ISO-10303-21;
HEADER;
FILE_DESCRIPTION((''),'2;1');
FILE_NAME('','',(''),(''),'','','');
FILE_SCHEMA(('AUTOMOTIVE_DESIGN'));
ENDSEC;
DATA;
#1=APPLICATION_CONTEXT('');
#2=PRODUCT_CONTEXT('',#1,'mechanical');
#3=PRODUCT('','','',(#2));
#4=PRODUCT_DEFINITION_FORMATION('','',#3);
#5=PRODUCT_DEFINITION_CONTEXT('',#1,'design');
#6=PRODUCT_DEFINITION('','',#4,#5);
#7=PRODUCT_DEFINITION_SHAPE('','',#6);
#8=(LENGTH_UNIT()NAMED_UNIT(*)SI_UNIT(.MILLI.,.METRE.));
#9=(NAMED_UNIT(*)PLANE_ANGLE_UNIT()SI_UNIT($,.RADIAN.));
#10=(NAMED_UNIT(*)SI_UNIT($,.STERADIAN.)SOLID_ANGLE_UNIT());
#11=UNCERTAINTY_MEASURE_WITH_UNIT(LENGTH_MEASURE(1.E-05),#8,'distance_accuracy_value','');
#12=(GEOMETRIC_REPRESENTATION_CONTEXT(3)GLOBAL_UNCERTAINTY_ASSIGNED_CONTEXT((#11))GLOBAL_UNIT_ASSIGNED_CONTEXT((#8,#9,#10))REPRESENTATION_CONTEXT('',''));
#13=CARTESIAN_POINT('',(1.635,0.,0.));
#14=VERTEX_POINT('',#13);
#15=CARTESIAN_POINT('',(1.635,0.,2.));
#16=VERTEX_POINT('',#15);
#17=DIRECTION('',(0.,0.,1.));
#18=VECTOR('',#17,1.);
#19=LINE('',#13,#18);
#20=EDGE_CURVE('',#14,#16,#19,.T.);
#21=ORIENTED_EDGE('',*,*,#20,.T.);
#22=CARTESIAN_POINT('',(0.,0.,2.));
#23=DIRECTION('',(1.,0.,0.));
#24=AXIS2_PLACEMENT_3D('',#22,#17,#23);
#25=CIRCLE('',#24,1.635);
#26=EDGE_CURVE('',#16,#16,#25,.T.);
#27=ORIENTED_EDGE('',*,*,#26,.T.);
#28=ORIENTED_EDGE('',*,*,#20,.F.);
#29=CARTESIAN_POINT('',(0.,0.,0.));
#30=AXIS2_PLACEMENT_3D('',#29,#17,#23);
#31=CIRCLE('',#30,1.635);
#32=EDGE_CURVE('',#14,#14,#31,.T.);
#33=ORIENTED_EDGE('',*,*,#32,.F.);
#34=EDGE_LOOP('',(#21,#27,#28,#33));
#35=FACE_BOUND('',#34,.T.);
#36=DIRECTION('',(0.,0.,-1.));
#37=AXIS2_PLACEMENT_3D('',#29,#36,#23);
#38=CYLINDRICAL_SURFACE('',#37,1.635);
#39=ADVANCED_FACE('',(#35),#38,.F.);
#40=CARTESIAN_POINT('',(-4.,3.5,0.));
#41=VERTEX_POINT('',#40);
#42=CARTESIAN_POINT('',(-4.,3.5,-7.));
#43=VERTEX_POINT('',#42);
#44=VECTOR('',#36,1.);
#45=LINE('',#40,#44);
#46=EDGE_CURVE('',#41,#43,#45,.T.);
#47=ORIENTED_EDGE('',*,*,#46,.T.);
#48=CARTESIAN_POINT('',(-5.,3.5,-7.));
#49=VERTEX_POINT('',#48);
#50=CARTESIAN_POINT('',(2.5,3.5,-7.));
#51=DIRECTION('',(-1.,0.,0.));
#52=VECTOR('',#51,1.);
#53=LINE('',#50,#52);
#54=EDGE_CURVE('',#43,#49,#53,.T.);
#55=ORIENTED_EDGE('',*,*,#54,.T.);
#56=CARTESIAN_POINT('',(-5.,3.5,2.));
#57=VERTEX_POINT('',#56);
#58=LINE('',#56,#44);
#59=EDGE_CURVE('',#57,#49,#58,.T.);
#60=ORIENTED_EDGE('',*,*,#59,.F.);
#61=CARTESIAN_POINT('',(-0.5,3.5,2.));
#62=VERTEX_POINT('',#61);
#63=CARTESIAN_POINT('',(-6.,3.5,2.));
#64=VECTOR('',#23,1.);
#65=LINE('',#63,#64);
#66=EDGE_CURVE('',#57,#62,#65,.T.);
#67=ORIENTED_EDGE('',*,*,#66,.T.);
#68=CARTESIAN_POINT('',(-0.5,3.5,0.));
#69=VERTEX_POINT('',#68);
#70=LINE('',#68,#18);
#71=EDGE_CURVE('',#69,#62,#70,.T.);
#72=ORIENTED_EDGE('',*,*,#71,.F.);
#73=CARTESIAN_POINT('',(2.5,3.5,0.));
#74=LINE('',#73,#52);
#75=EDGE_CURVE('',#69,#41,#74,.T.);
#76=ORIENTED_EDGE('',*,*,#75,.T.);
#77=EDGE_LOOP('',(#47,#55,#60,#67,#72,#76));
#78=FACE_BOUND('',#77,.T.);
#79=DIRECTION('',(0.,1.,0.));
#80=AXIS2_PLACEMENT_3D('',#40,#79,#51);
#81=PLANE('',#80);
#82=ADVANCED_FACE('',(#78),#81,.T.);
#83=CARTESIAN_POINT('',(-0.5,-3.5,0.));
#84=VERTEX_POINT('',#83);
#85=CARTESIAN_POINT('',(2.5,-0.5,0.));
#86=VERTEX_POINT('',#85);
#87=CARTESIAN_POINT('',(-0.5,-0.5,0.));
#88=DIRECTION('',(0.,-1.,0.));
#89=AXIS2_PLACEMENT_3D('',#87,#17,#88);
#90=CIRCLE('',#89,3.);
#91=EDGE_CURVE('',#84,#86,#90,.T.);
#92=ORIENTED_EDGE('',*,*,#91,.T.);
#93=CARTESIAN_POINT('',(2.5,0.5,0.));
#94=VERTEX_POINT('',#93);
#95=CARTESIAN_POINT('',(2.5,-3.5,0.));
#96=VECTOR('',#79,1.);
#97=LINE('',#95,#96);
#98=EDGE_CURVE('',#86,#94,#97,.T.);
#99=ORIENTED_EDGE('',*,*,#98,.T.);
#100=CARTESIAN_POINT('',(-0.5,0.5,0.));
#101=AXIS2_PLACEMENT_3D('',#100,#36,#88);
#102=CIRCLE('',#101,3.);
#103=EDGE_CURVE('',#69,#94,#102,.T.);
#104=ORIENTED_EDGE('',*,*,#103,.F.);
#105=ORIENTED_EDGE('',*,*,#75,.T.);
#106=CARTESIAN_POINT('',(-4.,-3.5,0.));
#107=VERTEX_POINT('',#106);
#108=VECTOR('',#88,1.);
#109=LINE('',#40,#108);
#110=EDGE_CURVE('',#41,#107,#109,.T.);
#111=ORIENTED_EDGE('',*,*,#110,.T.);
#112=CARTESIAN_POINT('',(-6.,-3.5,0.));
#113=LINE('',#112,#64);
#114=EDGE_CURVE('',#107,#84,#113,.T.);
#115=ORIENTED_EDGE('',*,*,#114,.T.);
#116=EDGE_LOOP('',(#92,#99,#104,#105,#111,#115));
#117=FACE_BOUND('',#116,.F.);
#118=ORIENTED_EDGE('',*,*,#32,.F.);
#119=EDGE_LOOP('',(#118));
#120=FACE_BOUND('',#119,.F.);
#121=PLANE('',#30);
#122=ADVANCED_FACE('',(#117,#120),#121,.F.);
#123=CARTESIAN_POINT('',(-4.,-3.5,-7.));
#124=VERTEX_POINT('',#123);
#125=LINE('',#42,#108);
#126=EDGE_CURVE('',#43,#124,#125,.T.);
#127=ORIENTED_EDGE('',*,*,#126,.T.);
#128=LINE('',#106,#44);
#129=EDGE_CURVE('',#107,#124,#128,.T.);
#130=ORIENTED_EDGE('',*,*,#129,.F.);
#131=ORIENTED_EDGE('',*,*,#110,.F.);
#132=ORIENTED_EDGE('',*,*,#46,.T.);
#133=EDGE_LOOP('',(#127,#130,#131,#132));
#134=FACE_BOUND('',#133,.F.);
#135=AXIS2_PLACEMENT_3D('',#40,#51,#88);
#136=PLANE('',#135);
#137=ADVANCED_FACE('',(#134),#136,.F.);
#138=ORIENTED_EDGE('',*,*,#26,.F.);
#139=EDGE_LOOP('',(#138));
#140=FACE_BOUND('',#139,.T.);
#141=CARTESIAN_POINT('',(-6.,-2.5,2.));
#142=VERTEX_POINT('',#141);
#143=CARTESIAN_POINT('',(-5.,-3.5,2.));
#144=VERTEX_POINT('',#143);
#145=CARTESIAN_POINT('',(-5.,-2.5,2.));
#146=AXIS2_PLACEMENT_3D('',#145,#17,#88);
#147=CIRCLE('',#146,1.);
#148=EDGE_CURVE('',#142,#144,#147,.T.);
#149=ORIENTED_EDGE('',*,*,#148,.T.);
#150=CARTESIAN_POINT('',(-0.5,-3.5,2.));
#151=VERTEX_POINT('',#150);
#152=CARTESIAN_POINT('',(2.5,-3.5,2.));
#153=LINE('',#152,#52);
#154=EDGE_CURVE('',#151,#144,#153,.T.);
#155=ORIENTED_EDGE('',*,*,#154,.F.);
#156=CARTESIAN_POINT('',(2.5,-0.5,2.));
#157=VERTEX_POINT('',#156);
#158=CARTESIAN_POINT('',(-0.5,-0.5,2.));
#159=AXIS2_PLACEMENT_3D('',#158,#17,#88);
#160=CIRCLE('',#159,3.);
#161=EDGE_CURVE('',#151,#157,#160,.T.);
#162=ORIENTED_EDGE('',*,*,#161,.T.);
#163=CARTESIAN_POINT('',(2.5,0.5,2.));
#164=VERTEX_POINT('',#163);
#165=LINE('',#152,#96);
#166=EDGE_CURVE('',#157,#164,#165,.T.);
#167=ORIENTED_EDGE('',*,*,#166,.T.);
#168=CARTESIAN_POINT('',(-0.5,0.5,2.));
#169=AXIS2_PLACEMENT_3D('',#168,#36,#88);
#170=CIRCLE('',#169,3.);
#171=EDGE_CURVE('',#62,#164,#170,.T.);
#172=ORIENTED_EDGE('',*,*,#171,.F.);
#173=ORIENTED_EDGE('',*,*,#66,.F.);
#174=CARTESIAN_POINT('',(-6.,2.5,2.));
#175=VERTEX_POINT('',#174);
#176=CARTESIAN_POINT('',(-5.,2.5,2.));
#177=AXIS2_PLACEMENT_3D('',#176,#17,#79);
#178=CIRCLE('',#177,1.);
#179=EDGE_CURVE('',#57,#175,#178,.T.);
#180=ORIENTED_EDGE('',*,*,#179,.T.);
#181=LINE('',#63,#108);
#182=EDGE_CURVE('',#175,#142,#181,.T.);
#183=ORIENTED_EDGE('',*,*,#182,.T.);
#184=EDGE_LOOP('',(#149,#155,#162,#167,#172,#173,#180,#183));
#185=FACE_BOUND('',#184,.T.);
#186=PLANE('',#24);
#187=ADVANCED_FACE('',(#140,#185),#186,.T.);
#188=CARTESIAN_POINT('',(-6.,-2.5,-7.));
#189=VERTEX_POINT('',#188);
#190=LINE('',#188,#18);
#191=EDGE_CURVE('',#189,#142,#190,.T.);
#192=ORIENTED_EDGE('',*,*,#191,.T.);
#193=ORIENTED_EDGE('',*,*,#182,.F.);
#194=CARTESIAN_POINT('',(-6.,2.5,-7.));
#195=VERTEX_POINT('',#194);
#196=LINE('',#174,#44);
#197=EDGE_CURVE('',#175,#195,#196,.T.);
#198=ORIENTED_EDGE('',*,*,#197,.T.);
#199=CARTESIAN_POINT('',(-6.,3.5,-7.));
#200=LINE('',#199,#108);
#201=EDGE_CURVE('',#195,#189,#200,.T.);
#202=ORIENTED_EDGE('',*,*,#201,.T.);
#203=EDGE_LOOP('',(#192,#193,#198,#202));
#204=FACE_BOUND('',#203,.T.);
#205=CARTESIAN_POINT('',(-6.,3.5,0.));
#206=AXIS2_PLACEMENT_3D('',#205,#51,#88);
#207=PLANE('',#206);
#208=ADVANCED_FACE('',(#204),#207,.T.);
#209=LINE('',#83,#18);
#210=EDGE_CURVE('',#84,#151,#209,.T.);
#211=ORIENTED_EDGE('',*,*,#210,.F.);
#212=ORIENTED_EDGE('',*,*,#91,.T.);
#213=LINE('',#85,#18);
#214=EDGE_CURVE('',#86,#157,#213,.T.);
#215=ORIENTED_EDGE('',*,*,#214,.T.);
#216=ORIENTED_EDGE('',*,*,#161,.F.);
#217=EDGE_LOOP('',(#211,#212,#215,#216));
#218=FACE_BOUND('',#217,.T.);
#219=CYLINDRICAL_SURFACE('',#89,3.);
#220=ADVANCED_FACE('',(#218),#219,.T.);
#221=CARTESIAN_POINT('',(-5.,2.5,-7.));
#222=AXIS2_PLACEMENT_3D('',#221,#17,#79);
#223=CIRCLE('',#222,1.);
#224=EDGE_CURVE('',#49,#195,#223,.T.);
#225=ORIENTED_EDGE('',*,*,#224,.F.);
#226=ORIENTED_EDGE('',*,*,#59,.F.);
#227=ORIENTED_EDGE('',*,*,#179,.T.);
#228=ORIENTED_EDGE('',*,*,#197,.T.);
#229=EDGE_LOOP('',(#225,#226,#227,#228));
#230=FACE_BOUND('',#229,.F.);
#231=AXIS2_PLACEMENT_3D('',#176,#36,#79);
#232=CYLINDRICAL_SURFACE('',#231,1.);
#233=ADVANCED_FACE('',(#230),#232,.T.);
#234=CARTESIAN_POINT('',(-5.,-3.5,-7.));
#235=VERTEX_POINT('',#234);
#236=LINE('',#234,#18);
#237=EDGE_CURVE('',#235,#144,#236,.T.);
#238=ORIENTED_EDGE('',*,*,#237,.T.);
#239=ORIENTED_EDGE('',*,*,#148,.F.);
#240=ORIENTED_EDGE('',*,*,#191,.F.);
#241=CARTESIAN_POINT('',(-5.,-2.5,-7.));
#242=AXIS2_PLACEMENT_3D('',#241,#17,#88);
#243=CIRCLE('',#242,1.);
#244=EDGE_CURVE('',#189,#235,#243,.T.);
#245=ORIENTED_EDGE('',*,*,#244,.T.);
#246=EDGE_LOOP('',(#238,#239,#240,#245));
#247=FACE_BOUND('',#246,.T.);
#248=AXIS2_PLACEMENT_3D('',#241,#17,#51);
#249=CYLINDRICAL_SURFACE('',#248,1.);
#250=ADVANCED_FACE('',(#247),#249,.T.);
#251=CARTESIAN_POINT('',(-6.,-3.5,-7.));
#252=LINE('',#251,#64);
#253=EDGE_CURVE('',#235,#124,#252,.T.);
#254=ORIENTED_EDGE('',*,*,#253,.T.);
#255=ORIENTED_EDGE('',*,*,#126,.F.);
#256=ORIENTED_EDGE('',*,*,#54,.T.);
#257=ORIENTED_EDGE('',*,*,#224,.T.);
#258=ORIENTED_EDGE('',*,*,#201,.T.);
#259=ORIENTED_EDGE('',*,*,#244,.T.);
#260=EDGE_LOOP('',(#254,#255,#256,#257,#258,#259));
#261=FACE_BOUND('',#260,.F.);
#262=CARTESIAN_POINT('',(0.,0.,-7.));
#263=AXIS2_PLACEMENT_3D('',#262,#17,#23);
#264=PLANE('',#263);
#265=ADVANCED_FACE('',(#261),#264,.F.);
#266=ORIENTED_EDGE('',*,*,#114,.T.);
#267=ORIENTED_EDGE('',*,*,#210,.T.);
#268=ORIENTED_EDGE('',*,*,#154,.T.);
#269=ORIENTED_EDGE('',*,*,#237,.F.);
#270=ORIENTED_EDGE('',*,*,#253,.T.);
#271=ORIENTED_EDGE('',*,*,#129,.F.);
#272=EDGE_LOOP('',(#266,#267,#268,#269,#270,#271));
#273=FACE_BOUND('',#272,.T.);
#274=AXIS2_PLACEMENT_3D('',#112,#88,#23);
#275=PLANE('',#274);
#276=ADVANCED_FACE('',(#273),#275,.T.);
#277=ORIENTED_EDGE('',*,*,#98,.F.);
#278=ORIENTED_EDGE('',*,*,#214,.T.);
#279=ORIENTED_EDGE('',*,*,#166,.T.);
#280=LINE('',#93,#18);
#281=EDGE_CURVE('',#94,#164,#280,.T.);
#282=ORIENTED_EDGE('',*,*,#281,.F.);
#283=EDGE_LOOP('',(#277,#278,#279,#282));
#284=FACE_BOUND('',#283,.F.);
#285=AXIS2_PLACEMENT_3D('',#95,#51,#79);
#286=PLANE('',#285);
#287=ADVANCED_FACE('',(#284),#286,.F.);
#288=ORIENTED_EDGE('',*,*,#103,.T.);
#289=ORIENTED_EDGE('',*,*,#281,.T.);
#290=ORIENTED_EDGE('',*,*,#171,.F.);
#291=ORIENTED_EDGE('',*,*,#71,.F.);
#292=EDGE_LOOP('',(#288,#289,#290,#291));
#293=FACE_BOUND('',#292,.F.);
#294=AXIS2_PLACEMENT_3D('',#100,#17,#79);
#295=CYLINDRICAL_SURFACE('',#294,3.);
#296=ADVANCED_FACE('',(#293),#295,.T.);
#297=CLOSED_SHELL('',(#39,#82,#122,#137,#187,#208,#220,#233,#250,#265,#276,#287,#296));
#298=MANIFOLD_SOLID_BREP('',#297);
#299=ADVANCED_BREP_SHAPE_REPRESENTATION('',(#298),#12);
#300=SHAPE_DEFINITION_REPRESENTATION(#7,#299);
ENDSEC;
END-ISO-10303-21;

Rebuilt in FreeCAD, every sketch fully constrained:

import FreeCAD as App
import Part
import Sketcher
Q = App.Units.Quantity


def edges_at(feature, points):
    """Names of the edges that pass closest to the given points."""
    edges = feature.Shape.Edges
    near = lambda p: min(range(len(edges)), key=lambda i: edges[i].distToShape(Part.Vertex(*p))[0])
    return sorted({f"Edge{near(p) + 1}" for p in points})

doc = App.newDocument("Part")
body = doc.addObject("PartDesign::Body", "Body")

sketch1 = body.newObject("Sketcher::SketchObject", "Sketch")
sketch1.AttachmentSupport = (doc.getObject("XY_Plane"), [""])
sketch1.MapMode = "FlatFace"
sketch1.addGeometry(Part.LineSegment(App.Vector(-6, 3.5, 0), App.Vector(-6, -3.5, 0)), False)
sketch1.addGeometry(Part.LineSegment(App.Vector(-6, -3.5, 0), App.Vector(2.5, -3.5, 0)), False)
sketch1.addGeometry(Part.LineSegment(App.Vector(2.5, -3.5, 0), App.Vector(2.5, 3.5, 0)), False)
sketch1.addGeometry(Part.LineSegment(App.Vector(2.5, 3.5, 0), App.Vector(-6, 3.5, 0)), False)
sketch1.addGeometry(Part.Circle(App.Vector(0, 0, 0), App.Vector(0, 0, 1), 1.6), False)
sketch1.addConstraint(Sketcher.Constraint("Coincident", 0, 2, 1, 1))
sketch1.addConstraint(Sketcher.Constraint("Coincident", 1, 2, 2, 1))
sketch1.addConstraint(Sketcher.Constraint("Coincident", 2, 2, 3, 1))
sketch1.addConstraint(Sketcher.Constraint("Coincident", 3, 2, 0, 1))
sketch1.addConstraint(Sketcher.Constraint("Vertical", 0))
sketch1.addConstraint(Sketcher.Constraint("Horizontal", 1))
sketch1.addConstraint(Sketcher.Constraint("Vertical", 2))
sketch1.addConstraint(Sketcher.Constraint("Horizontal", 3))
sketch1.addConstraint(Sketcher.Constraint("Coincident", 4, 3, -1, 1))
sketch1.addConstraint(Sketcher.Constraint("Diameter", 4, Q("3.27 mm")))
sketch1.addConstraint(Sketcher.Constraint("DistanceY", 0, 2, 0, 1, Q("7 mm")))
sketch1.addConstraint(Sketcher.Constraint("DistanceX", 0, 2, -1, 1, Q("6 mm")))
sketch1.addConstraint(Sketcher.Constraint("DistanceX", -1, 1, 1, 2, Q("2.5 mm")))
sketch1.addConstraint(Sketcher.Constraint("DistanceY", 0, 2, -1, 1, Q("3.5 mm")))
pad1 = body.newObject("PartDesign::Pad", "Pad")
pad1.Profile = sketch1
pad1.Length = 2

sketch2 = body.newObject("Sketcher::SketchObject", "Sketch001")
sketch2.AttachmentSupport = (doc.getObject("XY_Plane"), [""])
sketch2.MapMode = "FlatFace"
sketch2.addGeometry(Part.LineSegment(App.Vector(-6, 3.5, 0), App.Vector(-6, -3.5, 0)), False)
sketch2.addGeometry(Part.LineSegment(App.Vector(-6, -3.5, 0), App.Vector(-4, -3.5, 0)), False)
sketch2.addGeometry(Part.LineSegment(App.Vector(-4, -3.5, 0), App.Vector(-4, 3.5, 0)), False)
sketch2.addGeometry(Part.LineSegment(App.Vector(-4, 3.5, 0), App.Vector(-6, 3.5, 0)), False)
sketch2.addConstraint(Sketcher.Constraint("Coincident", 0, 2, 1, 1))
sketch2.addConstraint(Sketcher.Constraint("Coincident", 1, 2, 2, 1))
sketch2.addConstraint(Sketcher.Constraint("Coincident", 2, 2, 3, 1))
sketch2.addConstraint(Sketcher.Constraint("Coincident", 3, 2, 0, 1))
sketch2.addConstraint(Sketcher.Constraint("Vertical", 0))
sketch2.addConstraint(Sketcher.Constraint("Horizontal", 1))
sketch2.addConstraint(Sketcher.Constraint("Vertical", 2))
sketch2.addConstraint(Sketcher.Constraint("Horizontal", 3))
sketch2.addConstraint(Sketcher.Constraint("DistanceX", 1, 1, 1, 2, Q("2 mm")))
sketch2.addConstraint(Sketcher.Constraint("DistanceY", 0, 2, 0, 1, Q("7 mm")))
sketch2.addConstraint(Sketcher.Constraint("DistanceX", 0, 2, -1, 1, Q("6 mm")))
sketch2.addConstraint(Sketcher.Constraint("DistanceY", 0, 2, -1, 1, Q("3.5 mm")))
pad2 = body.newObject("PartDesign::Pad", "Pad001")
pad2.Profile = sketch2
pad2.Length = 7
pad2.Reversed = True
doc.recompute()

fillet = body.newObject("PartDesign::Fillet", "Fillet")
fillet.Base = (pad2, edges_at(pad2, [(2.5, 3.5, 1), (2.5, -3.5, 1)]))
fillet.Radius = 3
doc.recompute()

fillet2 = body.newObject("PartDesign::Fillet", "Fillet001")
fillet2.Base = (fillet, edges_at(fillet, [(-6, -3.5, -2.5), (-6, 3.5, -2.5)]))
fillet2.Radius = 1

doc.recompute()
